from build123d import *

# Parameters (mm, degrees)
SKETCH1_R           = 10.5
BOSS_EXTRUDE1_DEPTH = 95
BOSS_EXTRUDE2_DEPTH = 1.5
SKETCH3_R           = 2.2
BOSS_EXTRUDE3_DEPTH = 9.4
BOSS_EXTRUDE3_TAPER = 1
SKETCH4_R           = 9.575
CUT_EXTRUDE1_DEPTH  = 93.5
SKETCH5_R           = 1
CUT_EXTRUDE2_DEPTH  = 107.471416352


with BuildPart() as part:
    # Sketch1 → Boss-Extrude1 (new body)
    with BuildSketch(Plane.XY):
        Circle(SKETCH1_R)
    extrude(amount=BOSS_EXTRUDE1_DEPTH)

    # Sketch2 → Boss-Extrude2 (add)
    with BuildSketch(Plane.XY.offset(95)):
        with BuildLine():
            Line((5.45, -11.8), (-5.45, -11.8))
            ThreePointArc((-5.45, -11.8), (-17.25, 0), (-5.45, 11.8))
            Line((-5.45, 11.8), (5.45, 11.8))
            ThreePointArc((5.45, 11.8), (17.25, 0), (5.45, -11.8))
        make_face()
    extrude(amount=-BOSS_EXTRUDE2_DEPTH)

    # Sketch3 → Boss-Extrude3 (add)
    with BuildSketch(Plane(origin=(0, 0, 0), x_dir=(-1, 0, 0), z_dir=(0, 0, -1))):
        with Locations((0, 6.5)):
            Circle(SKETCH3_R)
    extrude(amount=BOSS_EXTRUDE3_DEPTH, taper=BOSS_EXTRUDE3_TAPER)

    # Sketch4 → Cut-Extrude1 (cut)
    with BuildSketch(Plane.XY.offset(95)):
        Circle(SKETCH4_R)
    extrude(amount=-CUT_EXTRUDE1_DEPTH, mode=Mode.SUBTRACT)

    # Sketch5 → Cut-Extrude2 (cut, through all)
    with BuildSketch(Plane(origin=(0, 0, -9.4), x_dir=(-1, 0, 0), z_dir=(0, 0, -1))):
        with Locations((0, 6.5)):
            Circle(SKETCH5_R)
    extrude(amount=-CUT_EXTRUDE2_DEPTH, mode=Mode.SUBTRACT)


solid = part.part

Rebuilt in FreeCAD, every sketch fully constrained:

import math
import FreeCAD as App
import Part
import Sketcher

V = App.Vector

doc = App.newDocument("Part")
params = doc.addObject("Spreadsheet::Sheet", "Params")
for row, (alias, value) in enumerate([
    ("sketch1_diameter", "21 mm"),
    ("pad1_length", "95 mm"),
    ("sketch2_radius", "11.8 mm"),
    ("sketch2_width", "10.9 mm"),
    ("pad2_length", "1.5 mm"),
    ("sketch3_diameter", "4.4 mm"),
    ("pad3_length", "9.4 mm"),
    ("pad3_taper", "-1 deg"),
    ("sketch4_diameter", "19.15 mm"),
    ("pocket1_length", "93.5 mm"),
    ("sketch5_diameter", "2 mm"),
], start=1):
    params.set(f"A{row}", alias)
    params.set(f"B{row}", "=" + value)
    params.setAlias(f"B{row}", alias)

body = doc.addObject("PartDesign::Body", "Body")

# Sketch on XY plane
sketch1 = body.newObject("Sketcher::SketchObject", "Sketch")
sketch1.AttachmentSupport = (doc.getObject("XY_Plane"), [""])
sketch1.MapMode = "FlatFace"
sketch1.addGeometry(Part.Circle(V(0, 0, 0), V(0, 0, 1), 10.5), False)
sketch1.addConstraint([
    Sketcher.Constraint("Coincident", 0, 3, -1, 1),
    Sketcher.Constraint("Diameter", 0, 21.0),
])
sketch1.setExpression("Constraints[1]", "Params.sketch1_diameter")
pad1 = body.newObject("PartDesign::Pad", "Pad")
pad1.Profile = sketch1
pad1.setExpression("Length", "Params.pad1_length")

# Sketch on XY plane
sketch2 = body.newObject("Sketcher::SketchObject", "Sketch001")
sketch2.AttachmentSupport = (doc.getObject("XY_Plane"), [""])
sketch2.MapMode = "FlatFace"
sketch2.AttachmentOffset = App.Placement(V(0, 0, 95), App.Rotation())
sketch2.addGeometry([
    Part.LineSegment(V(-5.45, -11.8, 0), V(5.45, -11.8, 0)),
    Part.ArcOfCircle(Part.Circle(V(5.45, 0, 0), V(0, 0, 1), 11.8), math.radians(-90), math.radians(90)),
    Part.LineSegment(V(5.45, 11.8, 0), V(-5.45, 11.8, 0)),
    Part.ArcOfCircle(Part.Circle(V(-5.45, 0, 0), V(0, 0, 1), 11.8), math.radians(90), math.radians(270)),
], False)
sketch2.addConstraint([
    Sketcher.Constraint("Tangent", 0, 2, 1, 1),
    Sketcher.Constraint("Tangent", 1, 2, 2, 1),
    Sketcher.Constraint("Tangent", 2, 2, 3, 1),
    Sketcher.Constraint("Tangent", 3, 2, 0, 1),
    Sketcher.Constraint("Horizontal", 0),
    Sketcher.Constraint("Horizontal", 2),
    Sketcher.Constraint("Symmetric", 1, 3, 3, 3, -1, 1),
    Sketcher.Constraint("Radius", 1, 11.8),
    Sketcher.Constraint("DistanceX", 0, 1, 0, 2, 10.9),
])
sketch2.setExpression("Constraints[7]", "Params.sketch2_radius")
sketch2.setExpression("Constraints[8]", "Params.sketch2_width")
pad2 = body.newObject("PartDesign::Pad", "Pad001")
pad2.Profile = sketch2
pad2.setExpression("Length", "Params.pad2_length")
pad2.Reversed = True

# Sketch on XY plane
sketch3 = body.newObject("Sketcher::SketchObject", "Sketch002")
sketch3.AttachmentSupport = (doc.getObject("XY_Plane"), [""])
sketch3.MapMode = "FlatFace"
sketch3.addGeometry(Part.Circle(V(0, 6.5, 0), V(0, 0, 1), 2.2), False)
sketch3.addConstraint([
    Sketcher.Constraint("PointOnObject", 0, 3, -2),
    Sketcher.Constraint("Diameter", 0, 4.4),
    Sketcher.Constraint("DistanceY", -1, 1, 0, 3, 6.5),
])
sketch3.setExpression("Constraints[1]", "Params.sketch3_diameter")
pad3 = body.newObject("PartDesign::Pad", "Pad002")
pad3.Profile = sketch3
pad3.setExpression("Length", "Params.pad3_length")
pad3.Reversed = True
pad3.setExpression("TaperAngle", "Params.pad3_taper")

# Sketch on XY plane
sketch4 = body.newObject("Sketcher::SketchObject", "Sketch003")
sketch4.AttachmentSupport = (doc.getObject("XY_Plane"), [""])
sketch4.MapMode = "FlatFace"
sketch4.AttachmentOffset = App.Placement(V(0, 0, 95), App.Rotation())
sketch4.addGeometry(Part.Circle(V(0, 0, 0), V(0, 0, 1), 9.575), False)
sketch4.addConstraint([
    Sketcher.Constraint("Coincident", 0, 3, -1, 1),
    Sketcher.Constraint("Diameter", 0, 19.15),
])
sketch4.setExpression("Constraints[1]", "Params.sketch4_diameter")
pocket1 = body.newObject("PartDesign::Pocket", "Pocket")
pocket1.Profile = sketch4
pocket1.setExpression("Length", "Params.pocket1_length")

# Sketch on XY plane
sketch5 = body.newObject("Sketcher::SketchObject", "Sketch004")
sketch5.AttachmentSupport = (doc.getObject("XY_Plane"), [""])
sketch5.MapMode = "FlatFace"
sketch5.AttachmentOffset = App.Placement(V(0, 0, -9.4), App.Rotation())
sketch5.addGeometry(Part.Circle(V(0, 6.5, 0), V(0, 0, 1), 1), False)
sketch5.addConstraint([
    Sketcher.Constraint("PointOnObject", 0, 3, -2),
    Sketcher.Constraint("Diameter", 0, 2.0),
    Sketcher.Constraint("DistanceY", -1, 1, 0, 3, 6.5),
])
sketch5.setExpression("Constraints[1]", "Params.sketch5_diameter")
pocket2 = body.newObject("PartDesign::Pocket", "Pocket001")
pocket2.Profile = sketch5
pocket2.Type = "ThroughAll"
pocket2.Reversed = True

doc.recompute()
